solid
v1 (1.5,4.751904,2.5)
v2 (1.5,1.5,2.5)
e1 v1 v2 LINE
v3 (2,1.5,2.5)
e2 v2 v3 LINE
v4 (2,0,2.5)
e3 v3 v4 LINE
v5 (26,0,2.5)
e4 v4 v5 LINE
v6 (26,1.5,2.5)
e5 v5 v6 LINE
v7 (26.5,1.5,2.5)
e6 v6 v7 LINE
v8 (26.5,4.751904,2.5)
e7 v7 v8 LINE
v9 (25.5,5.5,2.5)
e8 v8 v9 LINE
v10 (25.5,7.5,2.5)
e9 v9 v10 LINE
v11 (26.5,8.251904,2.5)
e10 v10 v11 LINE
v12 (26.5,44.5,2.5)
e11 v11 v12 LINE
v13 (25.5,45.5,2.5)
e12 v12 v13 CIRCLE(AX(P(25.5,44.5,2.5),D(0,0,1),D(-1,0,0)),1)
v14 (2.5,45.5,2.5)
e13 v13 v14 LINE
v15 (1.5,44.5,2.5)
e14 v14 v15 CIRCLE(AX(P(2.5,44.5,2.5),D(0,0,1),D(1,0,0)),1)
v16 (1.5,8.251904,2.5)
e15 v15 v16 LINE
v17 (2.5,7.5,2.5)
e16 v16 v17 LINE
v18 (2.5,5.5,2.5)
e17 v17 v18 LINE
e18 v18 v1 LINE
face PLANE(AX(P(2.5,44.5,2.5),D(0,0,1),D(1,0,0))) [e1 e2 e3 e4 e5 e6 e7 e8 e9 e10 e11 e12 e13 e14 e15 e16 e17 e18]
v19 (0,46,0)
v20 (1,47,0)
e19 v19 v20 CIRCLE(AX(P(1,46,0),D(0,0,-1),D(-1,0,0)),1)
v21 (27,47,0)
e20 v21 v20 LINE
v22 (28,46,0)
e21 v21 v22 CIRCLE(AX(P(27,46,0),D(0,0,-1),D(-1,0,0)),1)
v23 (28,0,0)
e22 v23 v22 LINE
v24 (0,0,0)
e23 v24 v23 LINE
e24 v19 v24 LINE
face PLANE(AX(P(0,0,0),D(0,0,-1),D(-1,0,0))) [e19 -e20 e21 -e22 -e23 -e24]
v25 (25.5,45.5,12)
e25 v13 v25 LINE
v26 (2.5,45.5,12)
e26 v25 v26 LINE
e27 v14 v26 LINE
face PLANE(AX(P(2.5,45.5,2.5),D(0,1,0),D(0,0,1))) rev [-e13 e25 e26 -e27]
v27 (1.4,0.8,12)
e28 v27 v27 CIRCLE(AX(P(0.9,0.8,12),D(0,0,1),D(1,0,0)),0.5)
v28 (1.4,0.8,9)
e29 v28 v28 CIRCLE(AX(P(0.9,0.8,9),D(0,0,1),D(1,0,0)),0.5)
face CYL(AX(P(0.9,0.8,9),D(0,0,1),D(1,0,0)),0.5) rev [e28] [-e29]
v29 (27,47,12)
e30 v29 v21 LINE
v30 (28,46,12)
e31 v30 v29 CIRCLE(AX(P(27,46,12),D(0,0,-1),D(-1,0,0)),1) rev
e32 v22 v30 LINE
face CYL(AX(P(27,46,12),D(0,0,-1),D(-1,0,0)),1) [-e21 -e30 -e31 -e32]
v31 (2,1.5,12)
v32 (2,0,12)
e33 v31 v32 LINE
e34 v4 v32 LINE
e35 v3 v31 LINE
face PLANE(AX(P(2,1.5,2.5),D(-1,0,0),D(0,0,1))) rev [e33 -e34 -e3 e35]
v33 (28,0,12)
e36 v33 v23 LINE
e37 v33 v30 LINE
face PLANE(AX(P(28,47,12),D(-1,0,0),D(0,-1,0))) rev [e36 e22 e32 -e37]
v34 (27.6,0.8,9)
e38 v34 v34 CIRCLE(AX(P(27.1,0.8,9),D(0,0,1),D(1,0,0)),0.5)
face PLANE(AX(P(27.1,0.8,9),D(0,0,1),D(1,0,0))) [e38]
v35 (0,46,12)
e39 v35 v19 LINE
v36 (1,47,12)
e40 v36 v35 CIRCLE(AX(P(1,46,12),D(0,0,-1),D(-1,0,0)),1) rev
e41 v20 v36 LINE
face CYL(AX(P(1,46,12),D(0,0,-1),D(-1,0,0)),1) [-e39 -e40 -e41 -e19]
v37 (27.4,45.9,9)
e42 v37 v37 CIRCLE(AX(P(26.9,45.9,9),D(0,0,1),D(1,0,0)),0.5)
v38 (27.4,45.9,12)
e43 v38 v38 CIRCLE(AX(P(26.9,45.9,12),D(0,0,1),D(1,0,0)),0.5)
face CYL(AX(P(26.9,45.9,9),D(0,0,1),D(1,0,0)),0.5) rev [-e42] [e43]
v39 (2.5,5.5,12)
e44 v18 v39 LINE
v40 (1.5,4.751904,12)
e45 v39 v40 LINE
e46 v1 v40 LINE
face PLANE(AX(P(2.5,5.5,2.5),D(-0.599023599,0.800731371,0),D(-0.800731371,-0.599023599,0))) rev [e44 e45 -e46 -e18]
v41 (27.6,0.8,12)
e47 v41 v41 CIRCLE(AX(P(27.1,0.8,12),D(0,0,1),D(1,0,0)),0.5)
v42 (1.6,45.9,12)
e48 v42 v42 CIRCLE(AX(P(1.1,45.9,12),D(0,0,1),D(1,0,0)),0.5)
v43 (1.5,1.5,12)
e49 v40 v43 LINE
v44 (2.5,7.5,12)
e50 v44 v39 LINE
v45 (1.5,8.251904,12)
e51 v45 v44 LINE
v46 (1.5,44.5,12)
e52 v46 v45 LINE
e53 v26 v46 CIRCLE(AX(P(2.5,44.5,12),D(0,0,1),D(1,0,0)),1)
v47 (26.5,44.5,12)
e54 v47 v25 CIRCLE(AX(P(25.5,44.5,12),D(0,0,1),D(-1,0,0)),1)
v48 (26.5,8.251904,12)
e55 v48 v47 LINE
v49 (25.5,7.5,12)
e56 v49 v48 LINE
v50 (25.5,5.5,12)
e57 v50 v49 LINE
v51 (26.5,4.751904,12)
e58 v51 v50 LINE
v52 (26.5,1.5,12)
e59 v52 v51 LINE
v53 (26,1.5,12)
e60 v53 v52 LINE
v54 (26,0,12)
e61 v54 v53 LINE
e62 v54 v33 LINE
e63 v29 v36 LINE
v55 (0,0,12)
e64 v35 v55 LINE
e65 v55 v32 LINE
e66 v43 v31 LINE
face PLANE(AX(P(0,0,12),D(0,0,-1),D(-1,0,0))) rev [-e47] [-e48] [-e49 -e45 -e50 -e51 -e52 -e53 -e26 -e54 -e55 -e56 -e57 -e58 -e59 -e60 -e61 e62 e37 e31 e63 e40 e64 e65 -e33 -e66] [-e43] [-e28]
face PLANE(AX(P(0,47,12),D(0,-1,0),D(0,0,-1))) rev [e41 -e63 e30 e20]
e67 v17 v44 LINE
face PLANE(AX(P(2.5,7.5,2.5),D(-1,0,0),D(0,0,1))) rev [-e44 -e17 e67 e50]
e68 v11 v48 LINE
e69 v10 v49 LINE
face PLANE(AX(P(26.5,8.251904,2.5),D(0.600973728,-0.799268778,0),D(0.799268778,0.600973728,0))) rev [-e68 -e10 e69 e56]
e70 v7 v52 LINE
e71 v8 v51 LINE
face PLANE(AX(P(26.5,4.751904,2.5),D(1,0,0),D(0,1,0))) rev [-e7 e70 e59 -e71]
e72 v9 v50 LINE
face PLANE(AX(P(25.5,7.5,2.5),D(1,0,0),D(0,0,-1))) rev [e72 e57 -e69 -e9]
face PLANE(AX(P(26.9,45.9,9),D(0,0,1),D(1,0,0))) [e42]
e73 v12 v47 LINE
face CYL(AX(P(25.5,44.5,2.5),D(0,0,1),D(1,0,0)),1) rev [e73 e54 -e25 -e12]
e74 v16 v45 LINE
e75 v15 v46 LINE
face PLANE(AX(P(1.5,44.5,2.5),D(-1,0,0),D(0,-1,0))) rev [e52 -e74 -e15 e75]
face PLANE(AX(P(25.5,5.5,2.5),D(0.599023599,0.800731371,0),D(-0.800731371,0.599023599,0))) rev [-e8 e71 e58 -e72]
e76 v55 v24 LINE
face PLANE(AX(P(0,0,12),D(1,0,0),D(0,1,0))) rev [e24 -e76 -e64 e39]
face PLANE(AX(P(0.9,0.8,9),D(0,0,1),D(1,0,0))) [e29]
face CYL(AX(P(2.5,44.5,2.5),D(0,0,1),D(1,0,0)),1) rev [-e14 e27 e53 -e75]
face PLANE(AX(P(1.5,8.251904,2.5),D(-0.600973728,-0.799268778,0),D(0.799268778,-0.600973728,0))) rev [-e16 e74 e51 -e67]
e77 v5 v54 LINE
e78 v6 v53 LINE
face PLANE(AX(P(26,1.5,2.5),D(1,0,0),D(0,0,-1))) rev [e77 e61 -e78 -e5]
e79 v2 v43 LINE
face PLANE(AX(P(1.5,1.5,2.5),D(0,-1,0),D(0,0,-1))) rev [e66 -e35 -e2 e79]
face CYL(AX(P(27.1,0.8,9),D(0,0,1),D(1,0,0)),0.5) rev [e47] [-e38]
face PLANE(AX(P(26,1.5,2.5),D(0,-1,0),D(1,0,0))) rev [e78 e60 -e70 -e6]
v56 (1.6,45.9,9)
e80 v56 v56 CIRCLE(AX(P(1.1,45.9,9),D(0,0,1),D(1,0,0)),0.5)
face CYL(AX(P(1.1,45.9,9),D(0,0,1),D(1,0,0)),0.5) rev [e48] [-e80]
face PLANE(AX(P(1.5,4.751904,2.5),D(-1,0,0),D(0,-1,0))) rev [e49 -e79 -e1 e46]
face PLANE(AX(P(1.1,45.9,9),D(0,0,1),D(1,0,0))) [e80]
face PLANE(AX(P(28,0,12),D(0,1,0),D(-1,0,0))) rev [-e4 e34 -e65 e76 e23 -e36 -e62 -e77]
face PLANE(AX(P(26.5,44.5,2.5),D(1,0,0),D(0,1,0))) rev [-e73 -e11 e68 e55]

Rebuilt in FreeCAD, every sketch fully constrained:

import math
import FreeCAD as App
import Part
import Sketcher

V = App.Vector
Q = App.Units.Quantity


def edges_at(feature, points):
    """Names of the edges that pass closest to the given points."""
    edges = feature.Shape.Edges
    near = lambda p: min(range(len(edges)), key=lambda i: edges[i].distToShape(Part.Vertex(*p))[0])
    return sorted({f"Edge{near(p) + 1}" for p in points})


def add_polygon(sketch, points):
    """Adds a closed chain of lines whose ends are joined by coincident constraints."""
    first, n = sketch.GeometryCount, len(points)
    for a, b in zip(points, points[1:] + points[:1]):
        sketch.addGeometry(Part.LineSegment(App.Vector(*a, 0), App.Vector(*b, 0)), False)
    for i in range(n):
        sketch.addConstraint(Sketcher.Constraint("Coincident", first + i, 2, first + (i + 1) % n, 1))

doc = App.newDocument("Part")
body = doc.addObject("PartDesign::Body", "Body")

# Sketch on XY plane
sketch1 = body.newObject("Sketcher::SketchObject", "Sketch")
sketch1.AttachmentSupport = (doc.getObject("XY_Plane"), [""])
sketch1.MapMode = "FlatFace"
add_polygon(sketch1, [(0, 47), (0, 0), (28, 0), (28, 47)])  # lines 0-3
sketch1.addConstraint([
    Sketcher.Constraint("Vertical", 0),
    Sketcher.Constraint("Horizontal", 1),
    Sketcher.Constraint("Vertical", 2),
    Sketcher.Constraint("Horizontal", 3),
    Sketcher.Constraint("Coincident", 0, 2, -1, 1),
    Sketcher.Constraint("DistanceX", 1, 1, 1, 2, 28.0),
    Sketcher.Constraint("DistanceY", 0, 2, 0, 1, 47.0),
])
pad1 = body.newObject("PartDesign::Pad", "Pad")
pad1.Profile = sketch1
pad1.Length = 12

# Sketch on XY plane
sketch2 = body.newObject("Sketcher::SketchObject", "Sketch001")
sketch2.AttachmentSupport = (doc.getObject("XY_Plane"), [""])
sketch2.MapMode = "FlatFace"
sketch2.AttachmentOffset = App.Placement(V(0, 0, 12), App.Rotation())
sketch2.addGeometry([
    Part.LineSegment(V(25.5, 45.5, 0), V(2.5, 45.5, 0)),  # 0
    Part.ArcOfCircle(Part.Circle(V(2.5, 44.5, 0), V(0, 0, 1), 1), math.radians(90), math.radians(180)),  # 1
    Part.LineSegment(V(1.5, 44.5, 0), V(1.5, 8.3, 0)),  # 2
    Part.LineSegment(V(1.5, 8.3, 0), V(2.5, 7.5, 0)),  # 3
    Part.LineSegment(V(2.5, 7.5, 0), V(2.5, 5.5, 0)),  # 4
    Part.LineSegment(V(2.5, 5.5, 0), V(1.5, 4.8, 0)),  # 5
    Part.LineSegment(V(1.5, 4.8, 0), V(1.5, 1.5, 0)),  # 6
    Part.LineSegment(V(1.5, 1.5, 0), V(2, 1.5, 0)),  # 7
    Part.LineSegment(V(2, 1.5, 0), V(2, 0, 0)),  # 8
    Part.LineSegment(V(2, 0, 0), V(26, 0, 0)),  # 9
    Part.LineSegment(V(26, 0, 0), V(26, 1.5, 0)),  # 10
    Part.LineSegment(V(26, 1.5, 0), V(26.5, 1.5, 0)),  # 11
    Part.LineSegment(V(26.5, 1.5, 0), V(26.5, 4.8, 0)),  # 12
    Part.LineSegment(V(26.5, 4.8, 0), V(25.5, 5.5, 0)),  # 13
    Part.LineSegment(V(25.5, 5.5, 0), V(25.5, 7.5, 0)),  # 14
    Part.LineSegment(V(25.5, 7.5, 0), V(26.5, 8.3, 0)),  # 15
    Part.LineSegment(V(26.5, 8.3, 0), V(26.5, 44.5, 0)),  # 16
    Part.ArcOfCircle(Part.Circle(V(25.5, 44.5, 0), V(0, 0, 1), 1), math.radians(0), math.radians(90)),  # 17
], False)
sketch2.addConstraint([
    Sketcher.Constraint("Tangent", 0, 2, 1, 1),
    Sketcher.Constraint("Tangent", 1, 2, 2, 1),
    Sketcher.Constraint("Coincident", 2, 2, 3, 1),
    Sketcher.Constraint("Coincident", 3, 2, 4, 1),
    Sketcher.Constraint("Coincident", 4, 2, 5, 1),
    Sketcher.Constraint("Coincident", 5, 2, 6, 1),
    Sketcher.Constraint("Coincident", 6, 2, 7, 1),
    Sketcher.Constraint("Coincident", 7, 2, 8, 1),
    Sketcher.Constraint("Coincident", 8, 2, 9, 1),
    Sketcher.Constraint("Coincident", 9, 2, 10, 1),
    Sketcher.Constraint("Coincident", 10, 2, 11, 1),
    Sketcher.Constraint("Coincident", 11, 2, 12, 1),
    Sketcher.Constraint("Coincident", 12, 2, 13, 1),
    Sketcher.Constraint("Coincident", 13, 2, 14, 1),
    Sketcher.Constraint("Coincident", 14, 2, 15, 1),
    Sketcher.Constraint("Coincident", 15, 2, 16, 1),
    Sketcher.Constraint("Tangent", 16, 2, 17, 1),
    Sketcher.Constraint("Tangent", 17, 2, 0, 1),
    Sketcher.Constraint("Horizontal", 0),
    Sketcher.Constraint("Vertical", 2),
    Sketcher.Constraint("Vertical", 4),
    Sketcher.Constraint("Vertical", 6),
    Sketcher.Constraint("Horizontal", 7),
    Sketcher.Constraint("Vertical", 8),
    Sketcher.Constraint("Horizontal", 9),
    Sketcher.Constraint("Vertical", 10),
    Sketcher.Constraint("Horizontal", 11),
    Sketcher.Constraint("Vertical", 12),
    Sketcher.Constraint("Vertical", 14),
    Sketcher.Constraint("Vertical", 16),
    Sketcher.Constraint("Equal", 1, 17),
    Sketcher.Constraint("PointOnObject", 8, 2, -1),
    Sketcher.Constraint("Horizontal", 7, 2, 10, 2),
    Sketcher.Constraint("Horizontal", 5, 2, 12, 2),
    Sketcher.Constraint("Horizontal", 4, 2, 13, 2),
    Sketcher.Constraint("Horizontal", 3, 2, 14, 2),
    Sketcher.Constraint("Horizontal", 2, 2, 15, 2),
    Sketcher.Constraint("Vertical", 0, 2, 3, 2),
    Sketcher.Constraint("Vertical", 2, 2, 5, 2),
    Sketcher.Constraint("Vertical", 17, 3, 13, 2),
    Sketcher.Constraint("Vertical", 12, 2, 15, 2),
    Sketcher.Constraint("Equal", 7, 11),
    Sketcher.Constraint("Radius", 1, 1.0),
    Sketcher.Constraint("DistanceX", 0, 2, 0, 1, 23.0),
    Sketcher.Constraint("DistanceX", 9, 1, 9, 2, 24.0),
    Sketcher.Constraint("DistanceY", 4, 2, 4, 1, 2.0),
    Sketcher.Constraint("DistanceY", 8, 2, 8, 1, 1.5),
    Sketcher.Constraint("DistanceX", -1, 1, 7, 2, 2.0),
    Sketcher.Constraint("Angle", 5, Q("-143.2 deg")),
    Sketcher.Constraint("DistanceY", 3, 2, 1, 3, 37.0),
    Sketcher.Constraint("DistanceY", 6, 2, 4, 2, 4.0),
    Sketcher.Constraint("DistanceY", 5, 2, 2, 2, 3.5),
])
pocket1 = body.newObject("PartDesign::Pocket", "Pocket")
pocket1.Profile = sketch2
pocket1.Length = 9.5
doc.recompute()

fillet = body.newObject("PartDesign::Fillet", "Fillet")
fillet.Base = (pocket1, edges_at(pocket1, [(0, 47, 6), (28, 47, 6)]))
fillet.Radius = 1

# Sketch on XY plane
sketch3 = body.newObject("Sketcher::SketchObject", "Sketch002")
sketch3.AttachmentSupport = (doc.getObject("XY_Plane"), [""])
sketch3.MapMode = "FlatFace"
sketch3.AttachmentOffset = App.Placement(V(0, 0, 12), App.Rotation())
sketch3.addGeometry([
    Part.Circle(V(1.1, 45.9, 0), V(0, 0, 1), 0.5),
    Part.Circle(V(26.9, 45.9, 0), V(0, 0, 1), 0.5),
    Part.Circle(V(0.9, 0.8, 0), V(0, 0, 1), 0.5),
    Part.Circle(V(27.1, 0.8, 0), V(0, 0, 1), 0.5),
], False)
sketch3.addConstraint([
    Sketcher.Constraint("Equal", 0, 1),
    Sketcher.Constraint("Equal", 1, 2),
    Sketcher.Constraint("Equal", 2, 3),
    Sketcher.Constraint("Horizontal", 0, 3, 1, 3),
    Sketcher.Constraint("Horizontal", 2, 3, 3, 3),
    Sketcher.Constraint("Diameter", 0, 1.0),
    Sketcher.Constraint("DistanceX", 2, 3, 1, 3, 26.0),
    Sketcher.Constraint("DistanceX", 0, 3, 3, 3, 26.0),
    Sketcher.Constraint("DistanceX", -1, 1, 0, 3, 1.1),
    Sketcher.Constraint("DistanceY", -1, 1, 0, 3, 45.9),
    Sketcher.Constraint("DistanceX", -1, 1, 1, 3, 26.9),
    Sketcher.Constraint("DistanceY", -1, 1, 2, 3, 0.8),
])
pocket2 = body.newObject("PartDesign::Pocket", "Pocket001")
pocket2.Profile = sketch3
pocket2.Length = 3

doc.recompute()
